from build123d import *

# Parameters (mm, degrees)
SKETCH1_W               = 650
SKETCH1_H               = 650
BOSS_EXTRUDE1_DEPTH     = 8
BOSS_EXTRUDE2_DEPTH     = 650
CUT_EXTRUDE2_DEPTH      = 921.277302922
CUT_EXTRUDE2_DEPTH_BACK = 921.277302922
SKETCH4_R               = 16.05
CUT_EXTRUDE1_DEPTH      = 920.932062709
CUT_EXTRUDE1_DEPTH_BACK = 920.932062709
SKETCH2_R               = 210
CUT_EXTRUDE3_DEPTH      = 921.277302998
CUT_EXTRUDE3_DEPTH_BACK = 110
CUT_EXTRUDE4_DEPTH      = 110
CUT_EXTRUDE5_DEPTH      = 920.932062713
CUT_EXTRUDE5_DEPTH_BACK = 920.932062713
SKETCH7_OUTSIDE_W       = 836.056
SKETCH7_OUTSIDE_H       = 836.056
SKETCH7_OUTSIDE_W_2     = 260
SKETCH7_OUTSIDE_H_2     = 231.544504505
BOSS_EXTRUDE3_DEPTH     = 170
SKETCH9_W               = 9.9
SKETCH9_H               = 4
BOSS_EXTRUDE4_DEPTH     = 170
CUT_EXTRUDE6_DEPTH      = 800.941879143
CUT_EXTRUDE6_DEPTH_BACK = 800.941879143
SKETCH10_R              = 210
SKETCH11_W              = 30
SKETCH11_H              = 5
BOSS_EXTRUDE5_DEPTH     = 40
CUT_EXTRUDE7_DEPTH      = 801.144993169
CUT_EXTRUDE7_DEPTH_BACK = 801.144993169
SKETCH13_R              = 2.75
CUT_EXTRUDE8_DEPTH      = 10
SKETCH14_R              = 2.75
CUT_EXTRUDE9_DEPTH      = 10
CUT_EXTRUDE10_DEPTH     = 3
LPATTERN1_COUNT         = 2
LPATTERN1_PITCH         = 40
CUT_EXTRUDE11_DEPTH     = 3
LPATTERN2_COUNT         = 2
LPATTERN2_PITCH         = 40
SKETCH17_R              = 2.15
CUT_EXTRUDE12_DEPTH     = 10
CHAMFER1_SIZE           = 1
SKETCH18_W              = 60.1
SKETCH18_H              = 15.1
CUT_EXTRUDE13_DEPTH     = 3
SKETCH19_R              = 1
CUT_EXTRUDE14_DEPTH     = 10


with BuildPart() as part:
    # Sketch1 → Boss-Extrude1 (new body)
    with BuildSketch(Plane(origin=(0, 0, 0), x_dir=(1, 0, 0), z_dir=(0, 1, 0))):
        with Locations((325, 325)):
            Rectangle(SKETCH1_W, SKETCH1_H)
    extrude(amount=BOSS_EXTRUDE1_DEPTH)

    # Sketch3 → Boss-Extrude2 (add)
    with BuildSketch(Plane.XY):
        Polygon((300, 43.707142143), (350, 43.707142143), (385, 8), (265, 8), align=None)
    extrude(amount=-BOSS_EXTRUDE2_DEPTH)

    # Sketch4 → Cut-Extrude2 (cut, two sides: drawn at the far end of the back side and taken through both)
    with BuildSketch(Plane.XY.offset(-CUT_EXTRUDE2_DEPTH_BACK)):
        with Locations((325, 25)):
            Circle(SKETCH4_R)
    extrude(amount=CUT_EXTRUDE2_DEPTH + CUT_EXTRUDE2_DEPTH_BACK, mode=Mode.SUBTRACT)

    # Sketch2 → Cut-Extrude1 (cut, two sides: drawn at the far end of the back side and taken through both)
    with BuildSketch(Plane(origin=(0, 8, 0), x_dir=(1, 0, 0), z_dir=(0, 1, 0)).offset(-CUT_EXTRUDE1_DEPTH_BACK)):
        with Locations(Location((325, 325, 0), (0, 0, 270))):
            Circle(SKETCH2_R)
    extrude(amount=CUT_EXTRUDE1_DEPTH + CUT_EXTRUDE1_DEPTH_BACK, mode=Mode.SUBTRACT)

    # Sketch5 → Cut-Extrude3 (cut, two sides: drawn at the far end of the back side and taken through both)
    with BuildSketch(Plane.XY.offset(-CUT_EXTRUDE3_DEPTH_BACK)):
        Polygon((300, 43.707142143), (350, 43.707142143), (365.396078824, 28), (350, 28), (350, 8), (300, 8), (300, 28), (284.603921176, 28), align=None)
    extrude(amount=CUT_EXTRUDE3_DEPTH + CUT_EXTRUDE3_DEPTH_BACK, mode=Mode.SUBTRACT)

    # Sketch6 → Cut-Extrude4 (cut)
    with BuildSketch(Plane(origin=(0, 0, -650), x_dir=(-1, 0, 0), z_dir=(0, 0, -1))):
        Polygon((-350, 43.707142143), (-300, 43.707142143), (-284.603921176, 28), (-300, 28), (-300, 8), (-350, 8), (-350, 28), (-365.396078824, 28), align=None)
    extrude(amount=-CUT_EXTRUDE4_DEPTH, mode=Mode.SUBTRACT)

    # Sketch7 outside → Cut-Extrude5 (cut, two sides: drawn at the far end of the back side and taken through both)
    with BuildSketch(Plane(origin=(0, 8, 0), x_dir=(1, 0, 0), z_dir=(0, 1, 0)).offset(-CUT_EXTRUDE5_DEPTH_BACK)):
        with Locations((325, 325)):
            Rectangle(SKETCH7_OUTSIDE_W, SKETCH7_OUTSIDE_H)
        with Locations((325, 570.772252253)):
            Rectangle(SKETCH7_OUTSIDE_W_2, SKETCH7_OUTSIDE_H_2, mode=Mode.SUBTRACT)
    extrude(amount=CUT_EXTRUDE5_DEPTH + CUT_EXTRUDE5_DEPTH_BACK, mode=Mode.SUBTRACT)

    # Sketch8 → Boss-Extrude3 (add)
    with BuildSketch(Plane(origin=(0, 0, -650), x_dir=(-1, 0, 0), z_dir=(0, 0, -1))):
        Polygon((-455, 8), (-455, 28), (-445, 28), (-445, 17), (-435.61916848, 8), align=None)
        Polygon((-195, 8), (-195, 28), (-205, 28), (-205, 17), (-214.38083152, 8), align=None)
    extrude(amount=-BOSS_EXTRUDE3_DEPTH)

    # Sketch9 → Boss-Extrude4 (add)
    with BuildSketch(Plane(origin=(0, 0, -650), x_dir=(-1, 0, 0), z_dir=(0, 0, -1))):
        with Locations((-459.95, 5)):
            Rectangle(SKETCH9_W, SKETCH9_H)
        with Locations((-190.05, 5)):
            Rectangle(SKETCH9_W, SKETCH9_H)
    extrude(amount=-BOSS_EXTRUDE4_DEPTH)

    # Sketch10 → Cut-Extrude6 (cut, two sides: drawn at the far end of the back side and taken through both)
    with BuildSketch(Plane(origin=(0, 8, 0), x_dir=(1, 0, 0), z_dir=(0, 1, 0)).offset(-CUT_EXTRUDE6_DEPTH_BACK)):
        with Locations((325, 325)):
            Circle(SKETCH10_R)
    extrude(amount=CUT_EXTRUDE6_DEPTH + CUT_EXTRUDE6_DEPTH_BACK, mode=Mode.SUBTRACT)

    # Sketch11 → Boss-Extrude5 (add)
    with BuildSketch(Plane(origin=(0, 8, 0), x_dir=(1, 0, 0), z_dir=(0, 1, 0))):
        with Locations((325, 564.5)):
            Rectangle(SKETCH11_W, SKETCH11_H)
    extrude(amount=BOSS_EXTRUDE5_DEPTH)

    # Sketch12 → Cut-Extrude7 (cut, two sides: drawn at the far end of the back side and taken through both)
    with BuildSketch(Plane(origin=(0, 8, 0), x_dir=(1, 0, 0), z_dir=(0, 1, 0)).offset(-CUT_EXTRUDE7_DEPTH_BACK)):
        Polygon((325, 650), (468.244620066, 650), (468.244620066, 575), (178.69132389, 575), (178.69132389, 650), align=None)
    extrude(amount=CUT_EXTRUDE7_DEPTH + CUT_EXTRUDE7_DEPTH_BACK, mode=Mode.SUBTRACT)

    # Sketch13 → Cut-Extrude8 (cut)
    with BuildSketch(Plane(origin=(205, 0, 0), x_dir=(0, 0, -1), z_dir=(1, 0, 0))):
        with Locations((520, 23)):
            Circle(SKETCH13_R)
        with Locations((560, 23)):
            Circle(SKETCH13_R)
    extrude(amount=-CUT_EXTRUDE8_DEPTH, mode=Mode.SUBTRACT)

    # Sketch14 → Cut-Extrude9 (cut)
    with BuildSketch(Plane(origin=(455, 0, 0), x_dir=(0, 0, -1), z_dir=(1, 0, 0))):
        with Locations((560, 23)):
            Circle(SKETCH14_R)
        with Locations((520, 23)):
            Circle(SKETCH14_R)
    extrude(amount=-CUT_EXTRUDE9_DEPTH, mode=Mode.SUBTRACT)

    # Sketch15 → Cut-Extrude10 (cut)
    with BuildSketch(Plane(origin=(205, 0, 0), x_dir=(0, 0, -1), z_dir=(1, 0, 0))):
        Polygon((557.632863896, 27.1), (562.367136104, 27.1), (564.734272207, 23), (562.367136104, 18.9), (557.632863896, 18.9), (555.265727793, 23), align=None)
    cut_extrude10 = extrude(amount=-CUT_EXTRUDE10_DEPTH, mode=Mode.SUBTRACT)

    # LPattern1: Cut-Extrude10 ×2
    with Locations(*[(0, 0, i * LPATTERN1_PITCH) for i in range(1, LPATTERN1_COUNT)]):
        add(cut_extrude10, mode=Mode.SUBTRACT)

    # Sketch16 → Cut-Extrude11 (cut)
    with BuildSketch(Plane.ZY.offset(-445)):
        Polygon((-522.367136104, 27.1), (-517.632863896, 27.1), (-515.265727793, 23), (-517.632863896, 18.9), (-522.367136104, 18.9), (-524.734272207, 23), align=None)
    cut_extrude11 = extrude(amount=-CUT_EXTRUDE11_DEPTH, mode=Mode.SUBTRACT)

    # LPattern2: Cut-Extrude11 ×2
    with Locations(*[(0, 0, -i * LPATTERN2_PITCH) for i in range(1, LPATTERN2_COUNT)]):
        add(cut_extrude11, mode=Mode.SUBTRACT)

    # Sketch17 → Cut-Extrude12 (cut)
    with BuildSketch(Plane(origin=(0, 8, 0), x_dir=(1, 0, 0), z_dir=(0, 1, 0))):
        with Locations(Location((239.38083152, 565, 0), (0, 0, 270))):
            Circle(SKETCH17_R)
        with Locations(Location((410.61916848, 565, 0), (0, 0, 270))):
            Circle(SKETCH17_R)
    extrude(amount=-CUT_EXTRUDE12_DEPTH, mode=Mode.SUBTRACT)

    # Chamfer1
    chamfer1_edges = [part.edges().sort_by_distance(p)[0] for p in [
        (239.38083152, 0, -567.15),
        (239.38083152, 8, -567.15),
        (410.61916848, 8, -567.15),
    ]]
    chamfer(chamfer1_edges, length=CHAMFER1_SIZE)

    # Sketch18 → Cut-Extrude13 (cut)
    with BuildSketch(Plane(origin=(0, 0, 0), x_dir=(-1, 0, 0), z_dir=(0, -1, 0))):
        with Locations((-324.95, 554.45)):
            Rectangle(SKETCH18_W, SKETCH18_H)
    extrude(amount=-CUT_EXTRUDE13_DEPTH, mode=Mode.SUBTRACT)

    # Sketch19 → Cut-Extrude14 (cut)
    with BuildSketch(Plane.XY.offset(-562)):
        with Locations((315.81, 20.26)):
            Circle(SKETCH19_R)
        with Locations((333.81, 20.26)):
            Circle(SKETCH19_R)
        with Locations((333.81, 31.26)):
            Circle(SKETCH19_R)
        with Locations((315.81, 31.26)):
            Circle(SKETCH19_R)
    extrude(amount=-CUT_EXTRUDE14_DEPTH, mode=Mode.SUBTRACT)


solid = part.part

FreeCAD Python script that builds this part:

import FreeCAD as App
import Part
import Sketcher
from FreeCAD import Vector
Q = App.Units.Quantity


def edges_at(feature, points):
    """Names of the edges that pass closest to the given points."""
    edges = feature.Shape.Edges
    near = lambda p: min(range(len(edges)), key=lambda i: edges[i].distToShape(Part.Vertex(*p))[0])
    return sorted({f"Edge{near(p) + 1}" for p in points})

doc = App.newDocument("Part")
body = doc.addObject("PartDesign::Body", "Body")

# Sketch on XZ plane
sketch1 = doc.addObject("Sketcher::SketchObject", "Sketch")
body.addObject(sketch1)
sketch1.AttachmentSupport = (doc.XZ_Plane, [""])
sketch1.MapMode = "FlatFace"
sketch1.addGeometry(Part.LineSegment(Vector(0, -650, 0), Vector(0, 0, 0)), False)
sketch1.addGeometry(Part.LineSegment(Vector(0, 0, 0), Vector(650, 0, 0)), False)
sketch1.addGeometry(Part.LineSegment(Vector(650, 0, 0), Vector(650, -650, 0)), False)
sketch1.addGeometry(Part.LineSegment(Vector(650, -650, 0), Vector(0, -650, 0)), False)
sketch1.addConstraint(Sketcher.Constraint("Coincident", 0, 2, 1, 1))
sketch1.addConstraint(Sketcher.Constraint("Coincident", 1, 2, 2, 1))
sketch1.addConstraint(Sketcher.Constraint("Coincident", 2, 2, 3, 1))
sketch1.addConstraint(Sketcher.Constraint("Coincident", 3, 2, 0, 1))
sketch1.addConstraint(Sketcher.Constraint("Vertical", 0))
sketch1.addConstraint(Sketcher.Constraint("Horizontal", 1))
sketch1.addConstraint(Sketcher.Constraint("Vertical", 2))
sketch1.addConstraint(Sketcher.Constraint("Horizontal", 3))
sketch1.addConstraint(Sketcher.Constraint("Coincident", 0, 2, -1, 1))
sketch1.addConstraint(Sketcher.Constraint("Equal", 3, 0))
sketch1.addConstraint(Sketcher.Constraint("DistanceX", 1, 1, 1, 2, Q("650 mm")))
pad1 = doc.addObject("PartDesign::Pad", "Pad")
body.addObject(pad1)
pad1.Profile = sketch1
pad1.Length = 8
pad1.Reversed = True

# Sketch on XY plane
sketch2 = doc.addObject("Sketcher::SketchObject", "Sketch001")
body.addObject(sketch2)
sketch2.AttachmentSupport = (doc.XY_Plane, [""])
sketch2.MapMode = "FlatFace"
sketch2.addGeometry(Part.LineSegment(Vector(350, 44, 0), Vector(300, 44, 0)), False)
sketch2.addGeometry(Part.LineSegment(Vector(300, 44, 0), Vector(265, 8, 0)), False)
sketch2.addGeometry(Part.LineSegment(Vector(265, 8, 0), Vector(385, 8, 0)), False)
sketch2.addGeometry(Part.LineSegment(Vector(385, 8, 0), Vector(350, 44, 0)), False)
sketch2.addConstraint(Sketcher.Constraint("Coincident", 0, 2, 1, 1))
sketch2.addConstraint(Sketcher.Constraint("Coincident", 1, 2, 2, 1))
sketch2.addConstraint(Sketcher.Constraint("Coincident", 2, 2, 3, 1))
sketch2.addConstraint(Sketcher.Constraint("Coincident", 3, 2, 0, 1))
sketch2.addConstraint(Sketcher.Constraint("Horizontal", 0))
sketch2.addConstraint(Sketcher.Constraint("Horizontal", 2))
sketch2.addConstraint(Sketcher.Constraint("Equal", 1, 3))
sketch2.addConstraint(Sketcher.Constraint("DistanceX", 0, 2, 0, 1, Q("50 mm")))
sketch2.addConstraint(Sketcher.Constraint("DistanceX", 2, 1, 2, 2, Q("120 mm")))
sketch2.addConstraint(Sketcher.Constraint("Distance", 1, Q("50 mm")))
sketch2.addConstraint(Sketcher.Constraint("DistanceX", -1, 1, 0, 2, Q("300 mm")))
sketch2.addConstraint(Sketcher.Constraint("DistanceY", -1, 1, 1, 2, Q("8 mm")))
pad2 = doc.addObject("PartDesign::Pad", "Pad001")
body.addObject(pad2)
pad2.Profile = sketch2
pad2.Length = 650
pad2.Reversed = True

# Sketch on XY plane
sketch3 = doc.addObject("Sketcher::SketchObject", "Sketch002")
body.addObject(sketch3)
sketch3.AttachmentSupport = (doc.XY_Plane, [""])
sketch3.MapMode = "FlatFace"
sketch3.addGeometry(Part.Circle(Vector(325, 25, 0), Vector(0, 0, 1), 16), False)
sketch3.addConstraint(Sketcher.Constraint("Diameter", 0, Q("32.1 mm")))
sketch3.addConstraint(Sketcher.Constraint("DistanceX", -1, 1, 0, 3, Q("325 mm")))
sketch3.addConstraint(Sketcher.Constraint("DistanceY", -1, 1, 0, 3, Q("25 mm")))
pocket1 = doc.addObject("PartDesign::Pocket", "Pocket")
body.addObject(pocket1)
pocket1.Profile = sketch3
pocket1.Type = "ThroughAll"
pocket1.Midplane = True

# Sketch on XZ plane
sketch4 = doc.addObject("Sketcher::SketchObject", "Sketch003")
body.addObject(sketch4)
sketch4.AttachmentSupport = (doc.XZ_Plane, [""])
sketch4.MapMode = "FlatFace"
sketch4.AttachmentOffset = App.Placement(Vector(0, 0, -8), App.Rotation())
sketch4.addGeometry(Part.Circle(Vector(325, -325, 0), Vector(0, 0, 1), 210), False)
sketch4.addConstraint(Sketcher.Constraint("Diameter", 0, Q("420 mm")))
sketch4.addConstraint(Sketcher.Constraint("DistanceX", -1, 1, 0, 3, Q("325 mm")))
sketch4.addConstraint(Sketcher.Constraint("DistanceY", 0, 3, -1, 1, Q("325 mm")))
pocket2 = doc.addObject("PartDesign::Pocket", "Pocket001")
body.addObject(pocket2)
pocket2.Profile = sketch4
pocket2.Type = "ThroughAll"
pocket2.Midplane = True

# Sketch on XY plane
sketch5 = doc.addObject("Sketcher::SketchObject", "Sketch004")
body.addObject(sketch5)
sketch5.AttachmentSupport = (doc.XY_Plane, [""])
sketch5.MapMode = "FlatFace"
sketch5.addGeometry(Part.LineSegment(Vector(350, 44, 0), Vector(300, 44, 0)), False)
sketch5.addGeometry(Part.LineSegment(Vector(300, 44, 0), Vector(285, 28, 0)), False)
sketch5.addGeometry(Part.LineSegment(Vector(285, 28, 0), Vector(300, 28, 0)), False)
sketch5.addGeometry(Part.LineSegment(Vector(300, 28, 0), Vector(300, 8, 0)), False)
sketch5.addGeometry(Part.LineSegment(Vector(300, 8, 0), Vector(350, 8, 0)), False)
sketch5.addGeometry(Part.LineSegment(Vector(350, 8, 0), Vector(350, 28, 0)), False)
sketch5.addGeometry(Part.LineSegment(Vector(350, 28, 0), Vector(365, 28, 0)), False)
sketch5.addGeometry(Part.LineSegment(Vector(365, 28, 0), Vector(350, 44, 0)), False)
sketch5.addConstraint(Sketcher.Constraint("Coincident", 0, 2, 1, 1))
sketch5.addConstraint(Sketcher.Constraint("Coincident", 1, 2, 2, 1))
sketch5.addConstraint(Sketcher.Constraint("Coincident", 2, 2, 3, 1))
sketch5.addConstraint(Sketcher.Constraint("Coincident", 3, 2, 4, 1))
sketch5.addConstraint(Sketcher.Constraint("Coincident", 4, 2, 5, 1))
sketch5.addConstraint(Sketcher.Constraint("Coincident", 5, 2, 6, 1))
sketch5.addConstraint(Sketcher.Constraint("Coincident", 6, 2, 7, 1))
sketch5.addConstraint(Sketcher.Constraint("Coincident", 7, 2, 0, 1))
sketch5.addConstraint(Sketcher.Constraint("Horizontal", 0))
sketch5.addConstraint(Sketcher.Constraint("Horizontal", 2))
sketch5.addConstraint(Sketcher.Constraint("Vertical", 3))
sketch5.addConstraint(Sketcher.Constraint("Horizontal", 4))
sketch5.addConstraint(Sketcher.Constraint("Vertical", 5))
sketch5.addConstraint(Sketcher.Constraint("Horizontal", 6))
sketch5.addConstraint(Sketcher.Constraint("Horizontal", 2, 2, 5, 2))
sketch5.addConstraint(Sketcher.Constraint("Vertical", 0, 2, 2, 2))
sketch5.addConstraint(Sketcher.Constraint("Vertical", 5, 2, 7, 2))
sketch5.addConstraint(Sketcher.Constraint("Equal", 2, 6))
sketch5.addConstraint(Sketcher.Constraint("DistanceX", 0, 2, 0, 1, Q("50 mm")))
sketch5.addConstraint(Sketcher.Constraint("DistanceY", 3, 2, 3, 1, Q("20 mm")))
sketch5.addConstraint(Sketcher.Constraint("DistanceX", -1, 1, 0, 2, Q("300 mm")))
sketch5.addConstraint(Sketcher.Constraint("DistanceY", -1, 1, 1, 2, Q("28 mm")))
sketch5.addConstraint(Sketcher.Constraint("Distance", 1, Q("21.994398 mm")))
sketch5.addConstraint(Sketcher.Constraint("DistanceX", 2, 1, 2, 2, Q("15.396079 mm")))
pocket3 = doc.addObject("PartDesign::Pocket", "Pocket002")
body.addObject(pocket3)
pocket3.Profile = sketch5
pocket3.Type = "TwoLengths"
pocket3.Length = 921.277303
pocket3.Length2 = 110
pocket3.Reversed = True

# Sketch on XY plane
sketch6 = doc.addObject("Sketcher::SketchObject", "Sketch005")
body.addObject(sketch6)
sketch6.AttachmentSupport = (doc.XY_Plane, [""])
sketch6.MapMode = "FlatFace"
sketch6.AttachmentOffset = App.Placement(Vector(0, 0, -650), App.Rotation())
sketch6.addGeometry(Part.LineSegment(Vector(300, 44, 0), Vector(350, 44, 0)), False)
sketch6.addGeometry(Part.LineSegment(Vector(350, 44, 0), Vector(365, 28, 0)), False)
sketch6.addGeometry(Part.LineSegment(Vector(365, 28, 0), Vector(350, 28, 0)), False)
sketch6.addGeometry(Part.LineSegment(Vector(350, 28, 0), Vector(350, 8, 0)), False)
sketch6.addGeometry(Part.LineSegment(Vector(350, 8, 0), Vector(300, 8, 0)), False)
sketch6.addGeometry(Part.LineSegment(Vector(300, 8, 0), Vector(300, 28, 0)), False)
sketch6.addGeometry(Part.LineSegment(Vector(300, 28, 0), Vector(285, 28, 0)), False)
sketch6.addGeometry(Part.LineSegment(Vector(285, 28, 0), Vector(300, 44, 0)), False)
sketch6.addConstraint(Sketcher.Constraint("Coincident", 0, 2, 1, 1))
sketch6.addConstraint(Sketcher.Constraint("Coincident", 1, 2, 2, 1))
sketch6.addConstraint(Sketcher.Constraint("Coincident", 2, 2, 3, 1))
sketch6.addConstraint(Sketcher.Constraint("Coincident", 3, 2, 4, 1))
sketch6.addConstraint(Sketcher.Constraint("Coincident", 4, 2, 5, 1))
sketch6.addConstraint(Sketcher.Constraint("Coincident", 5, 2, 6, 1))
sketch6.addConstraint(Sketcher.Constraint("Coincident", 6, 2, 7, 1))
sketch6.addConstraint(Sketcher.Constraint("Coincident", 7, 2, 0, 1))
sketch6.addConstraint(Sketcher.Constraint("Horizontal", 0))
sketch6.addConstraint(Sketcher.Constraint("Horizontal", 2))
sketch6.addConstraint(Sketcher.Constraint("Vertical", 3))
sketch6.addConstraint(Sketcher.Constraint("Horizontal", 4))
sketch6.addConstraint(Sketcher.Constraint("Vertical", 5))
sketch6.addConstraint(Sketcher.Constraint("Horizontal", 6))
sketch6.addConstraint(Sketcher.Constraint("Horizontal", 2, 2, 5, 2))
sketch6.addConstraint(Sketcher.Constraint("Vertical", 0, 2, 2, 2))
sketch6.addConstraint(Sketcher.Constraint("Vertical", 5, 2, 7, 2))
sketch6.addConstraint(Sketcher.Constraint("Equal", 2, 6))
sketch6.addConstraint(Sketcher.Constraint("DistanceX", 0, 1, 0, 2, Q("50 mm")))
sketch6.addConstraint(Sketcher.Constraint("DistanceY", 3, 2, 3, 1, Q("20 mm")))
sketch6.addConstraint(Sketcher.Constraint("DistanceX", -1, 1, 0, 2, Q("350 mm")))
sketch6.addConstraint(Sketcher.Constraint("DistanceY", -1, 1, 1, 2, Q("28 mm")))
sketch6.addConstraint(Sketcher.Constraint("Distance", 1, Q("21.994398 mm")))
sketch6.addConstraint(Sketcher.Constraint("DistanceX", 2, 2, 2, 1, Q("15.396079 mm")))
pocket4 = doc.addObject("PartDesign::Pocket", "Pocket003")
body.addObject(pocket4)
pocket4.Profile = sketch6
pocket4.Length = 110
pocket4.Reversed = True

# Sketch on XZ plane
sketch7 = doc.addObject("Sketcher::SketchObject", "Sketch006")
body.addObject(sketch7)
sketch7.AttachmentSupport = (doc.XZ_Plane, [""])
sketch7.MapMode = "FlatFace"
sketch7.AttachmentOffset = App.Placement(Vector(0, 0, -8), App.Rotation())
sketch7.addGeometry(Part.LineSegment(Vector(-93, -743, 0), Vector(-93, 93, 0)), False)
sketch7.addGeometry(Part.LineSegment(Vector(-93, 93, 0), Vector(743, 93, 0)), False)
sketch7.addGeometry(Part.LineSegment(Vector(743, 93, 0), Vector(743, -743, 0)), False)
sketch7.addGeometry(Part.LineSegment(Vector(743, -743, 0), Vector(-93, -743, 0)), False)
sketch7.addGeometry(Part.LineSegment(Vector(455, -455, 0), Vector(195, -455, 0)), False)
sketch7.addGeometry(Part.LineSegment(Vector(195, -455, 0), Vector(195, -687, 0)), False)
sketch7.addGeometry(Part.LineSegment(Vector(195, -687, 0), Vector(455, -687, 0)), False)
sketch7.addGeometry(Part.LineSegment(Vector(455, -687, 0), Vector(455, -455, 0)), False)
sketch7.addConstraint(Sketcher.Constraint("Coincident", 0, 2, 1, 1))
sketch7.addConstraint(Sketcher.Constraint("Coincident", 1, 2, 2, 1))
sketch7.addConstraint(Sketcher.Constraint("Coincident", 2, 2, 3, 1))
sketch7.addConstraint(Sketcher.Constraint("Coincident", 3, 2, 0, 1))
sketch7.addConstraint(Sketcher.Constraint("Coincident", 4, 2, 5, 1))
sketch7.addConstraint(Sketcher.Constraint("Coincident", 5, 2, 6, 1))
sketch7.addConstraint(Sketcher.Constraint("Coincident", 6, 2, 7, 1))
sketch7.addConstraint(Sketcher.Constraint("Coincident", 7, 2, 4, 1))
sketch7.addConstraint(Sketcher.Constraint("Vertical", 0))
sketch7.addConstraint(Sketcher.Constraint("Horizontal", 1))
sketch7.addConstraint(Sketcher.Constraint("Vertical", 2))
sketch7.addConstraint(Sketcher.Constraint("Horizontal", 3))
sketch7.addConstraint(Sketcher.Constraint("Horizontal", 4))
sketch7.addConstraint(Sketcher.Constraint("Vertical", 5))
sketch7.addConstraint(Sketcher.Constraint("Horizontal", 6))
sketch7.addConstraint(Sketcher.Constraint("Vertical", 7))
sketch7.addConstraint(Sketcher.Constraint("Equal", 3, 0))
sketch7.addConstraint(Sketcher.Constraint("DistanceX", 4, 2, 4, 1, Q("260 mm")))
sketch7.addConstraint(Sketcher.Constraint("DistanceX", -1, 1, 4, 2, Q("195 mm")))
sketch7.addConstraint(Sketcher.Constraint("DistanceY", 4, 2, -1, 1, Q("455 mm")))
sketch7.addConstraint(Sketcher.Constraint("DistanceX", 1, 1, 1, 2, Q("836.056 mm")))
sketch7.addConstraint(Sketcher.Constraint("DistanceX", 0, 2, -1, 1, Q("93.028 mm")))
sketch7.addConstraint(Sketcher.Constraint("DistanceY", -1, 1, 0, 2, Q("93.028 mm")))
sketch7.addConstraint(Sketcher.Constraint("DistanceY", 5, 2, 5, 1, Q("231.544505 mm")))
pocket5 = doc.addObject("PartDesign::Pocket", "Pocket004")
body.addObject(pocket5)
pocket5.Profile = sketch7
pocket5.Type = "ThroughAll"
pocket5.Midplane = True

# Sketch on XY plane
sketch8 = doc.addObject("Sketcher::SketchObject", "Sketch007")
body.addObject(sketch8)
sketch8.AttachmentSupport = (doc.XY_Plane, [""])
sketch8.MapMode = "FlatFace"
sketch8.AttachmentOffset = App.Placement(Vector(0, 0, -650), App.Rotation())
sketch8.addGeometry(Part.LineSegment(Vector(455, 28, 0), Vector(455, 8, 0)), False)
sketch8.addGeometry(Part.LineSegment(Vector(455, 8, 0), Vector(436, 8, 0)), False)
sketch8.addGeometry(Part.LineSegment(Vector(436, 8, 0), Vector(445, 17, 0)), False)
sketch8.addGeometry(Part.LineSegment(Vector(445, 17, 0), Vector(445, 28, 0)), False)
sketch8.addGeometry(Part.LineSegment(Vector(445, 28, 0), Vector(455, 28, 0)), False)
sketch8.addGeometry(Part.LineSegment(Vector(195, 8, 0), Vector(195, 28, 0)), False)
sketch8.addGeometry(Part.LineSegment(Vector(195, 28, 0), Vector(205, 28, 0)), False)
sketch8.addGeometry(Part.LineSegment(Vector(205, 28, 0), Vector(205, 17, 0)), False)
sketch8.addGeometry(Part.LineSegment(Vector(205, 17, 0), Vector(214, 8, 0)), False)
sketch8.addGeometry(Part.LineSegment(Vector(214, 8, 0), Vector(195, 8, 0)), False)
sketch8.addConstraint(Sketcher.Constraint("Coincident", 0, 2, 1, 1))
sketch8.addConstraint(Sketcher.Constraint("Coincident", 1, 2, 2, 1))
sketch8.addConstraint(Sketcher.Constraint("Coincident", 2, 2, 3, 1))
sketch8.addConstraint(Sketcher.Constraint("Coincident", 3, 2, 4, 1))
sketch8.addConstraint(Sketcher.Constraint("Coincident", 4, 2, 0, 1))
sketch8.addConstraint(Sketcher.Constraint("Coincident", 5, 2, 6, 1))
sketch8.addConstraint(Sketcher.Constraint("Coincident", 6, 2, 7, 1))
sketch8.addConstraint(Sketcher.Constraint("Coincident", 7, 2, 8, 1))
sketch8.addConstraint(Sketcher.Constraint("Coincident", 8, 2, 9, 1))
sketch8.addConstraint(Sketcher.Constraint("Coincident", 9, 2, 5, 1))
sketch8.addConstraint(Sketcher.Constraint("Vertical", 0))
sketch8.addConstraint(Sketcher.Constraint("Horizontal", 1))
sketch8.addConstraint(Sketcher.Constraint("Vertical", 3))
sketch8.addConstraint(Sketcher.Constraint("Horizontal", 4))
sketch8.addConstraint(Sketcher.Constraint("Vertical", 5))
sketch8.addConstraint(Sketcher.Constraint("Horizontal", 6))
sketch8.addConstraint(Sketcher.Constraint("Vertical", 7))
sketch8.addConstraint(Sketcher.Constraint("Horizontal", 9))
sketch8.addConstraint(Sketcher.Constraint("Horizontal", 4, 2, 5, 2))
sketch8.addConstraint(Sketcher.Constraint("Horizontal", 2, 2, 7, 2))
sketch8.addConstraint(Sketcher.Constraint("Horizontal", 1, 2, 8, 2))
sketch8.addConstraint(Sketcher.Constraint("Equal", 4, 6))
sketch8.addConstraint(Sketcher.Constraint("Equal", 1, 9))
sketch8.addConstraint(Sketcher.Constraint("DistanceX", 4, 1, 4, 2, Q("10 mm")))
sketch8.addConstraint(Sketcher.Constraint("DistanceY", 0, 2, 0, 1, Q("20 mm")))
sketch8.addConstraint(Sketcher.Constraint("DistanceY", 3, 1, 3, 2, Q("11 mm")))
sketch8.addConstraint(Sketcher.Constraint("Distance", 2, Q("13 mm")))
sketch8.addConstraint(Sketcher.Constraint("DistanceX", -1, 1, 0, 2, Q("455 mm")))
sketch8.addConstraint(Sketcher.Constraint("DistanceY", -1, 1, 0, 2, Q("8 mm")))
sketch8.addConstraint(Sketcher.Constraint("DistanceX", -1, 1, 5, 2, Q("195 mm")))
pad3 = doc.addObject("PartDesign::Pad", "Pad002")
body.addObject(pad3)
pad3.Profile = sketch8
pad3.Length = 170

# Sketch on XY plane
sketch9 = doc.addObject("Sketcher::SketchObject", "Sketch008")
body.addObject(sketch9)
sketch9.AttachmentSupport = (doc.XY_Plane, [""])
sketch9.MapMode = "FlatFace"
sketch9.AttachmentOffset = App.Placement(Vector(0, 0, -650), App.Rotation())
sketch9.addGeometry(Part.LineSegment(Vector(464.9, 7, 0), Vector(464.9, 3, 0)), False)
sketch9.addGeometry(Part.LineSegment(Vector(464.9, 3, 0), Vector(455, 3, 0)), False)
sketch9.addGeometry(Part.LineSegment(Vector(455, 3, 0), Vector(455, 7, 0)), False)
sketch9.addGeometry(Part.LineSegment(Vector(455, 7, 0), Vector(464.9, 7, 0)), False)
sketch9.addGeometry(Part.LineSegment(Vector(195, 7, 0), Vector(195, 3, 0)), False)
sketch9.addGeometry(Part.LineSegment(Vector(195, 3, 0), Vector(185.1, 3, 0)), False)
sketch9.addGeometry(Part.LineSegment(Vector(185.1, 3, 0), Vector(185.1, 7, 0)), False)
sketch9.addGeometry(Part.LineSegment(Vector(185.1, 7, 0), Vector(195, 7, 0)), False)
sketch9.addConstraint(Sketcher.Constraint("Coincident", 0, 2, 1, 1))
sketch9.addConstraint(Sketcher.Constraint("Coincident", 1, 2, 2, 1))
sketch9.addConstraint(Sketcher.Constraint("Coincident", 2, 2, 3, 1))
sketch9.addConstraint(Sketcher.Constraint("Coincident", 3, 2, 0, 1))
sketch9.addConstraint(Sketcher.Constraint("Coincident", 4, 2, 5, 1))
sketch9.addConstraint(Sketcher.Constraint("Coincident", 5, 2, 6, 1))
sketch9.addConstraint(Sketcher.Constraint("Coincident", 6, 2, 7, 1))
sketch9.addConstraint(Sketcher.Constraint("Coincident", 7, 2, 4, 1))
sketch9.addConstraint(Sketcher.Constraint("Vertical", 0))
sketch9.addConstraint(Sketcher.Constraint("Horizontal", 1))
sketch9.addConstraint(Sketcher.Constraint("Vertical", 2))
sketch9.addConstraint(Sketcher.Constraint("Horizontal", 3))
sketch9.addConstraint(Sketcher.Constraint("Vertical", 4))
sketch9.addConstraint(Sketcher.Constraint("Horizontal", 5))
sketch9.addConstraint(Sketcher.Constraint("Vertical", 6))
sketch9.addConstraint(Sketcher.Constraint("Horizontal", 7))
sketch9.addConstraint(Sketcher.Constraint("Horizontal", 1, 2, 4, 2))
sketch9.addConstraint(Sketcher.Constraint("Horizontal", 3, 2, 6, 2))
sketch9.addConstraint(Sketcher.Constraint("Equal", 3, 5))
sketch9.addConstraint(Sketcher.Constraint("DistanceY", 0, 2, 0, 1, Q("4 mm")))
sketch9.addConstraint(Sketcher.Constraint("DistanceX", 1, 2, 1, 1, Q("9.9 mm")))
sketch9.addConstraint(Sketcher.Constraint("DistanceY", -1, 1, 0, 2, Q("3 mm")))
sketch9.addConstraint(Sketcher.Constraint("DistanceX", -1, 1, 1, 2, Q("455 mm")))
sketch9.addConstraint(Sketcher.Constraint("DistanceX", -1, 1, 4, 2, Q("195 mm")))
pad4 = doc.addObject("PartDesign::Pad", "Pad003")
body.addObject(pad4)
pad4.Profile = sketch9
pad4.Length = 170

# Sketch on XZ plane
sketch10 = doc.addObject("Sketcher::SketchObject", "Sketch009")
body.addObject(sketch10)
sketch10.AttachmentSupport = (doc.XZ_Plane, [""])
sketch10.MapMode = "FlatFace"
sketch10.AttachmentOffset = App.Placement(Vector(0, 0, -8), App.Rotation())
sketch10.addGeometry(Part.Circle(Vector(325, -325, 0), Vector(0, 0, 1), 210), False)
sketch10.addConstraint(Sketcher.Constraint("Diameter", 0, Q("420 mm")))
sketch10.addConstraint(Sketcher.Constraint("DistanceX", -1, 1, 0, 3, Q("325 mm")))
sketch10.addConstraint(Sketcher.Constraint("DistanceY", 0, 3, -1, 1, Q("325 mm")))
pocket6 = doc.addObject("PartDesign::Pocket", "Pocket005")
body.addObject(pocket6)
pocket6.Profile = sketch10
pocket6.Type = "ThroughAll"
pocket6.Midplane = True

# Sketch on XZ plane
sketch11 = doc.addObject("Sketcher::SketchObject", "Sketch010")
body.addObject(sketch11)
sketch11.AttachmentSupport = (doc.XZ_Plane, [""])
sketch11.MapMode = "FlatFace"
sketch11.AttachmentOffset = App.Placement(Vector(0, 0, -8), App.Rotation())
sketch11.addGeometry(Part.LineSegment(Vector(310, -567, 0), Vector(310, -562, 0)), False)
sketch11.addGeometry(Part.LineSegment(Vector(310, -562, 0), Vector(340, -562, 0)), False)
sketch11.addGeometry(Part.LineSegment(Vector(340, -562, 0), Vector(340, -567, 0)), False)
sketch11.addGeometry(Part.LineSegment(Vector(340, -567, 0), Vector(310, -567, 0)), False)
sketch11.addConstraint(Sketcher.Constraint("Coincident", 0, 2, 1, 1))
sketch11.addConstraint(Sketcher.Constraint("Coincident", 1, 2, 2, 1))
sketch11.addConstraint(Sketcher.Constraint("Coincident", 2, 2, 3, 1))
sketch11.addConstraint(Sketcher.Constraint("Coincident", 3, 2, 0, 1))
sketch11.addConstraint(Sketcher.Constraint("Vertical", 0))
sketch11.addConstraint(Sketcher.Constraint("Horizontal", 1))
sketch11.addConstraint(Sketcher.Constraint("Vertical", 2))
sketch11.addConstraint(Sketcher.Constraint("Horizontal", 3))
sketch11.addConstraint(Sketcher.Constraint("DistanceX", 1, 1, 1, 2, Q("30 mm")))
sketch11.addConstraint(Sketcher.Constraint("DistanceY", 0, 1, 0, 2, Q("5 mm")))
sketch11.addConstraint(Sketcher.Constraint("DistanceX", -1, 1, 0, 2, Q("310 mm")))
sketch11.addConstraint(Sketcher.Constraint("DistanceY", 0, 2, -1, 1, Q("562 mm")))
pad5 = doc.addObject("PartDesign::Pad", "Pad004")
body.addObject(pad5)
pad5.Profile = sketch11
pad5.Length = 40
pad5.Reversed = True

# Sketch on XZ plane
sketch12 = doc.addObject("Sketcher::SketchObject", "Sketch011")
body.addObject(sketch12)
sketch12.AttachmentSupport = (doc.XZ_Plane, [""])
sketch12.MapMode = "FlatFace"
sketch12.AttachmentOffset = App.Placement(Vector(0, 0, -8), App.Rotation())
sketch12.addGeometry(Part.LineSegment(Vector(468, -650, 0), Vector(179, -650, 0)), False)
sketch12.addGeometry(Part.LineSegment(Vector(179, -650, 0), Vector(179, -575, 0)), False)
sketch12.addGeometry(Part.LineSegment(Vector(179, -575, 0), Vector(468, -575, 0)), False)
sketch12.addGeometry(Part.LineSegment(Vector(468, -575, 0), Vector(468, -650, 0)), False)
sketch12.addConstraint(Sketcher.Constraint("Coincident", 0, 2, 1, 1))
sketch12.addConstraint(Sketcher.Constraint("Coincident", 1, 2, 2, 1))
sketch12.addConstraint(Sketcher.Constraint("Coincident", 2, 2, 3, 1))
sketch12.addConstraint(Sketcher.Constraint("Coincident", 3, 2, 0, 1))
sketch12.addConstraint(Sketcher.Constraint("Horizontal", 0))
sketch12.addConstraint(Sketcher.Constraint("Vertical", 1))
sketch12.addConstraint(Sketcher.Constraint("Horizontal", 2))
sketch12.addConstraint(Sketcher.Constraint("Vertical", 3))
sketch12.addConstraint(Sketcher.Constraint("DistanceY", 1, 1, 1, 2, Q("75 mm")))
sketch12.addConstraint(Sketcher.Constraint("DistanceY", 0, 2, -1, 1, Q("650 mm")))
sketch12.addConstraint(Sketcher.Constraint("DistanceX", 0, 2, 0, 1, Q("289.553296 mm")))
sketch12.addConstraint(Sketcher.Constraint("DistanceX", -1, 1, 2, 2, Q("468.24462 mm")))
pocket7 = doc.addObject("PartDesign::Pocket", "Pocket006")
body.addObject(pocket7)
pocket7.Profile = sketch12
pocket7.Type = "ThroughAll"
pocket7.Midplane = True

# Sketch on YZ plane
sketch13 = doc.addObject("Sketcher::SketchObject", "Sketch012")
body.addObject(sketch13)
sketch13.AttachmentSupport = (doc.YZ_Plane, [""])
sketch13.MapMode = "FlatFace"
sketch13.AttachmentOffset = App.Placement(Vector(0, 0, 205), App.Rotation())
sketch13.addGeometry(Part.Circle(Vector(23, -520, 0), Vector(0, 0, 1), 2.8), False)
sketch13.addGeometry(Part.Circle(Vector(23, -560, 0), Vector(0, 0, 1), 2.8), False)
sketch13.addConstraint(Sketcher.Constraint("Equal", 0, 1))
sketch13.addConstraint(Sketcher.Constraint("Vertical", 0, 3, 1, 3))
sketch13.addConstraint(Sketcher.Constraint("Diameter", 0, Q("5.5 mm")))
sketch13.addConstraint(Sketcher.Constraint("DistanceX", -1, 1, 0, 3, Q("23 mm")))
sketch13.addConstraint(Sketcher.Constraint("DistanceY", 0, 3, -1, 1, Q("520 mm")))
sketch13.addConstraint(Sketcher.Constraint("DistanceY", 1, 3, -1, 1, Q("560 mm")))
pocket8 = doc.addObject("PartDesign::Pocket", "Pocket007")
body.addObject(pocket8)
pocket8.Profile = sketch13
pocket8.Length = 10

# Sketch on YZ plane
sketch14 = doc.addObject("Sketcher::SketchObject", "Sketch013")
body.addObject(sketch14)
sketch14.AttachmentSupport = (doc.YZ_Plane, [""])
sketch14.MapMode = "FlatFace"
sketch14.AttachmentOffset = App.Placement(Vector(0, 0, 455), App.Rotation())
sketch14.addGeometry(Part.Circle(Vector(23, -560, 0), Vector(0, 0, 1), 2.8), False)
sketch14.addGeometry(Part.Circle(Vector(23, -520, 0), Vector(0, 0, 1), 2.8), False)
sketch14.addConstraint(Sketcher.Constraint("Equal", 0, 1))
sketch14.addConstraint(Sketcher.Constraint("Vertical", 0, 3, 1, 3))
sketch14.addConstraint(Sketcher.Constraint("Diameter", 0, Q("5.5 mm")))
sketch14.addConstraint(Sketcher.Constraint("DistanceX", -1, 1, 0, 3, Q("23 mm")))
sketch14.addConstraint(Sketcher.Constraint("DistanceY", 0, 3, -1, 1, Q("560 mm")))
sketch14.addConstraint(Sketcher.Constraint("DistanceY", 1, 3, -1, 1, Q("520 mm")))
pocket9 = doc.addObject("PartDesign::Pocket", "Pocket008")
body.addObject(pocket9)
pocket9.Profile = sketch14
pocket9.Length = 10

# Sketch on YZ plane
sketch15 = doc.addObject("Sketcher::SketchObject", "Sketch014")
body.addObject(sketch15)
sketch15.AttachmentSupport = (doc.YZ_Plane, [""])
sketch15.MapMode = "FlatFace"
sketch15.AttachmentOffset = App.Placement(Vector(0, 0, 205), App.Rotation())
sketch15.addGeometry(Part.LineSegment(Vector(27.1, -562.4, 0), Vector(27.1, -557.6, 0)), False)
sketch15.addGeometry(Part.LineSegment(Vector(27.1, -557.6, 0), Vector(23, -555.3, 0)), False)
sketch15.addGeometry(Part.LineSegment(Vector(23, -555.3, 0), Vector(18.9, -557.6, 0)), False)
sketch15.addGeometry(Part.LineSegment(Vector(18.9, -557.6, 0), Vector(18.9, -562.4, 0)), False)
sketch15.addGeometry(Part.LineSegment(Vector(18.9, -562.4, 0), Vector(23, -564.7, 0)), False)
sketch15.addGeometry(Part.LineSegment(Vector(23, -564.7, 0), Vector(27.1, -562.4, 0)), False)
sketch15.addConstraint(Sketcher.Constraint("Coincident", 0, 2, 1, 1))
sketch15.addConstraint(Sketcher.Constraint("Coincident", 1, 2, 2, 1))
sketch15.addConstraint(Sketcher.Constraint("Coincident", 2, 2, 3, 1))
sketch15.addConstraint(Sketcher.Constraint("Coincident", 3, 2, 4, 1))
sketch15.addConstraint(Sketcher.Constraint("Coincident", 4, 2, 5, 1))
sketch15.addConstraint(Sketcher.Constraint("Coincident", 5, 2, 0, 1))
sketch15.addConstraint(Sketcher.Constraint("Vertical", 0))
sketch15.addConstraint(Sketcher.Constraint("Vertical", 3))
sketch15.addConstraint(Sketcher.Constraint("Parallel", 1, 4))
sketch15.addConstraint(Sketcher.Constraint("Parallel", 2, 5))
sketch15.addConstraint(Sketcher.Constraint("Horizontal", 0, 2, 2, 2))
sketch15.addConstraint(Sketcher.Constraint("Horizontal", 3, 2, 5, 2))
sketch15.addConstraint(Sketcher.Constraint("Vertical", 1, 2, 4, 2))
sketch15.addConstraint(Sketcher.Constraint("Angle", 1, Q("150 deg")))
sketch15.addConstraint(Sketcher.Constraint("DistanceX", -1, 1, 1, 2, Q("23 mm")))
sketch15.addConstraint(Sketcher.Constraint("DistanceX", -1, 1, 0, 2, Q("27.1 mm")))
sketch15.addConstraint(Sketcher.Constraint("DistanceY", 0, 1, 0, 2, Q("4.734272 mm")))
sketch15.addConstraint(Sketcher.Constraint("DistanceY", 0, 2, -1, 1, Q("557.632864 mm")))
pocket10 = doc.addObject("PartDesign::Pocket", "Pocket009")
body.addObject(pocket10)
pocket10.Profile = sketch15
pocket10.Length = 3
doc.recompute()

linearpattern = doc.addObject("PartDesign::LinearPattern", "LinearPattern")
body.addObject(linearpattern)
linearpattern.Originals = [pocket10]
linearpattern.Direction = (doc.Z_Axis, [""])
linearpattern.Mode = "offset"
linearpattern.Offset = 40
linearpattern.Occurrences = 2
body.Tip = linearpattern

# Sketch on YZ plane
sketch16 = doc.addObject("Sketcher::SketchObject", "Sketch015")
body.addObject(sketch16)
sketch16.AttachmentSupport = (doc.YZ_Plane, [""])
sketch16.MapMode = "FlatFace"
sketch16.AttachmentOffset = App.Placement(Vector(0, 0, 445), App.Rotation())
sketch16.addGeometry(Part.LineSegment(Vector(27.1, -517.6, 0), Vector(27.1, -522.4, 0)), False)
sketch16.addGeometry(Part.LineSegment(Vector(27.1, -522.4, 0), Vector(23, -524.7, 0)), False)
sketch16.addGeometry(Part.LineSegment(Vector(23, -524.7, 0), Vector(18.9, -522.4, 0)), False)
sketch16.addGeometry(Part.LineSegment(Vector(18.9, -522.4, 0), Vector(18.9, -517.6, 0)), False)
sketch16.addGeometry(Part.LineSegment(Vector(18.9, -517.6, 0), Vector(23, -515.3, 0)), False)
sketch16.addGeometry(Part.LineSegment(Vector(23, -515.3, 0), Vector(27.1, -517.6, 0)), False)
sketch16.addConstraint(Sketcher.Constraint("Coincident", 0, 2, 1, 1))
sketch16.addConstraint(Sketcher.Constraint("Coincident", 1, 2, 2, 1))
sketch16.addConstraint(Sketcher.Constraint("Coincident", 2, 2, 3, 1))
sketch16.addConstraint(Sketcher.Constraint("Coincident", 3, 2, 4, 1))
sketch16.addConstraint(Sketcher.Constraint("Coincident", 4, 2, 5, 1))
sketch16.addConstraint(Sketcher.Constraint("Coincident", 5, 2, 0, 1))
sketch16.addConstraint(Sketcher.Constraint("Vertical", 0))
sketch16.addConstraint(Sketcher.Constraint("Vertical", 3))
sketch16.addConstraint(Sketcher.Constraint("Parallel", 1, 4))
sketch16.addConstraint(Sketcher.Constraint("Parallel", 2, 5))
sketch16.addConstraint(Sketcher.Constraint("Horizontal", 0, 2, 2, 2))
sketch16.addConstraint(Sketcher.Constraint("Horizontal", 3, 2, 5, 2))
sketch16.addConstraint(Sketcher.Constraint("Vertical", 1, 2, 4, 2))
sketch16.addConstraint(Sketcher.Constraint("Angle", 1, Q("-150 deg")))
sketch16.addConstraint(Sketcher.Constraint("DistanceX", -1, 1, 1, 2, Q("23 mm")))
sketch16.addConstraint(Sketcher.Constraint("DistanceX", -1, 1, 0, 2, Q("27.1 mm")))
sketch16.addConstraint(Sketcher.Constraint("DistanceY", 0, 2, 0, 1, Q("4.734272 mm")))
sketch16.addConstraint(Sketcher.Constraint("DistanceY", 0, 2, -1, 1, Q("522.367136 mm")))
pocket11 = doc.addObject("PartDesign::Pocket", "Pocket010")
body.addObject(pocket11)
pocket11.Profile = sketch16
pocket11.Length = 3
pocket11.Reversed = True
doc.recompute()

linearpattern2 = doc.addObject("PartDesign::LinearPattern", "LinearPattern001")
body.addObject(linearpattern2)
linearpattern2.Originals = [pocket11]
linearpattern2.Direction = (doc.Z_Axis, [""])
linearpattern2.Mode = "offset"
linearpattern2.Offset = 40
linearpattern2.Occurrences = 2
linearpattern2.Reversed = True
body.Tip = linearpattern2

# Sketch on XZ plane
sketch17 = doc.addObject("Sketcher::SketchObject", "Sketch016")
body.addObject(sketch17)
sketch17.AttachmentSupport = (doc.XZ_Plane, [""])
sketch17.MapMode = "FlatFace"
sketch17.AttachmentOffset = App.Placement(Vector(0, 0, -8), App.Rotation())
sketch17.addGeometry(Part.Circle(Vector(239.4, -565, 0), Vector(0, 0, 1), 2.1), False)
sketch17.addGeometry(Part.Circle(Vector(410.6, -565, 0), Vector(0, 0, 1), 2.1), False)
sketch17.addConstraint(Sketcher.Constraint("Equal", 0, 1))
sketch17.addConstraint(Sketcher.Constraint("Horizontal", 0, 3, 1, 3))
sketch17.addConstraint(Sketcher.Constraint("Diameter", 0, Q("4.3 mm")))
sketch17.addConstraint(Sketcher.Constraint("DistanceY", 0, 3, -1, 1, Q("565 mm")))
sketch17.addConstraint(Sketcher.Constraint("DistanceX", -1, 1, 0, 3, Q("239.380832 mm")))
sketch17.addConstraint(Sketcher.Constraint("DistanceX", -1, 1, 1, 3, Q("410.619168 mm")))
pocket12 = doc.addObject("PartDesign::Pocket", "Pocket011")
body.addObject(pocket12)
pocket12.Profile = sketch17
pocket12.Length = 10
pocket12.Reversed = True
doc.recompute()

chamfer = doc.addObject("PartDesign::Chamfer", "Chamfer")
body.addObject(chamfer)
chamfer.Base = (pocket12, edges_at(pocket12, [(239.381, 0, -567.15), (239.381, 8, -567.15), (410.619, 8, -567.15)]))
chamfer.Size = 1

# Sketch on XZ plane
sketch18 = doc.addObject("Sketcher::SketchObject", "Sketch017")
body.addObject(sketch18)
sketch18.AttachmentSupport = (doc.XZ_Plane, [""])
sketch18.MapMode = "FlatFace"
sketch18.addGeometry(Part.LineSegment(Vector(355, -562, 0), Vector(355, -547, 0)), False)
sketch18.addGeometry(Part.LineSegment(Vector(355, -547, 0), Vector(295, -547, 0)), False)
sketch18.addGeometry(Part.LineSegment(Vector(295, -547, 0), Vector(295, -562, 0)), False)
sketch18.addGeometry(Part.LineSegment(Vector(295, -562, 0), Vector(355, -562, 0)), False)
sketch18.addConstraint(Sketcher.Constraint("Coincident", 0, 2, 1, 1))
sketch18.addConstraint(Sketcher.Constraint("Coincident", 1, 2, 2, 1))
sketch18.addConstraint(Sketcher.Constraint("Coincident", 2, 2, 3, 1))
sketch18.addConstraint(Sketcher.Constraint("Coincident", 3, 2, 0, 1))
sketch18.addConstraint(Sketcher.Constraint("Vertical", 0))
sketch18.addConstraint(Sketcher.Constraint("Horizontal", 1))
sketch18.addConstraint(Sketcher.Constraint("Vertical", 2))
sketch18.addConstraint(Sketcher.Constraint("Horizontal", 3))
sketch18.addConstraint(Sketcher.Constraint("DistanceX", 1, 2, 1, 1, Q("60.1 mm")))
sketch18.addConstraint(Sketcher.Constraint("DistanceY", 0, 1, 0, 2, Q("15.1 mm")))
sketch18.addConstraint(Sketcher.Constraint("DistanceX", -1, 1, 0, 2, Q("355 mm")))
sketch18.addConstraint(Sketcher.Constraint("DistanceY", 2, 2, -1, 1, Q("562 mm")))
pocket13 = doc.addObject("PartDesign::Pocket", "Pocket012")
body.addObject(pocket13)
pocket13.Profile = sketch18
pocket13.Length = 3

# Sketch on XY plane
sketch19 = doc.addObject("Sketcher::SketchObject", "Sketch018")
body.addObject(sketch19)
sketch19.AttachmentSupport = (doc.XY_Plane, [""])
sketch19.MapMode = "FlatFace"
sketch19.AttachmentOffset = App.Placement(Vector(0, 0, -562), App.Rotation())
sketch19.addGeometry(Part.Circle(Vector(315.8, 20.3, 0), Vector(0, 0, 1), 1), False)
sketch19.addGeometry(Part.Circle(Vector(333.8, 20.3, 0), Vector(0, 0, 1), 1), False)
sketch19.addGeometry(Part.Circle(Vector(333.8, 31.3, 0), Vector(0, 0, 1), 1), False)
sketch19.addGeometry(Part.Circle(Vector(315.8, 31.3, 0), Vector(0, 0, 1), 1), False)
sketch19.addConstraint(Sketcher.Constraint("Equal", 0, 1))
sketch19.addConstraint(Sketcher.Constraint("Equal", 1, 2))
sketch19.addConstraint(Sketcher.Constraint("Equal", 2, 3))
sketch19.addConstraint(Sketcher.Constraint("Horizontal", 0, 3, 1, 3))
sketch19.addConstraint(Sketcher.Constraint("Horizontal", 2, 3, 3, 3))
sketch19.addConstraint(Sketcher.Constraint("Vertical", 1, 3, 2, 3))
sketch19.addConstraint(Sketcher.Constraint("Vertical", 0, 3, 3, 3))
sketch19.addConstraint(Sketcher.Constraint("Diameter", 0, Q("2 mm")))
sketch19.addConstraint(Sketcher.Constraint("DistanceX", 0, 3, 1, 3, Q("18 mm")))
sketch19.addConstraint(Sketcher.Constraint("DistanceY", 1, 3, 2, 3, Q("11 mm")))
sketch19.addConstraint(Sketcher.Constraint("DistanceX", -1, 1, 0, 3, Q("315.81 mm")))
sketch19.addConstraint(Sketcher.Constraint("DistanceY", -1, 1, 0, 3, Q("20.26 mm")))
pocket14 = doc.addObject("PartDesign::Pocket", "Pocket013")
body.addObject(pocket14)
pocket14.Profile = sketch19
pocket14.Length = 10

doc.recompute()
